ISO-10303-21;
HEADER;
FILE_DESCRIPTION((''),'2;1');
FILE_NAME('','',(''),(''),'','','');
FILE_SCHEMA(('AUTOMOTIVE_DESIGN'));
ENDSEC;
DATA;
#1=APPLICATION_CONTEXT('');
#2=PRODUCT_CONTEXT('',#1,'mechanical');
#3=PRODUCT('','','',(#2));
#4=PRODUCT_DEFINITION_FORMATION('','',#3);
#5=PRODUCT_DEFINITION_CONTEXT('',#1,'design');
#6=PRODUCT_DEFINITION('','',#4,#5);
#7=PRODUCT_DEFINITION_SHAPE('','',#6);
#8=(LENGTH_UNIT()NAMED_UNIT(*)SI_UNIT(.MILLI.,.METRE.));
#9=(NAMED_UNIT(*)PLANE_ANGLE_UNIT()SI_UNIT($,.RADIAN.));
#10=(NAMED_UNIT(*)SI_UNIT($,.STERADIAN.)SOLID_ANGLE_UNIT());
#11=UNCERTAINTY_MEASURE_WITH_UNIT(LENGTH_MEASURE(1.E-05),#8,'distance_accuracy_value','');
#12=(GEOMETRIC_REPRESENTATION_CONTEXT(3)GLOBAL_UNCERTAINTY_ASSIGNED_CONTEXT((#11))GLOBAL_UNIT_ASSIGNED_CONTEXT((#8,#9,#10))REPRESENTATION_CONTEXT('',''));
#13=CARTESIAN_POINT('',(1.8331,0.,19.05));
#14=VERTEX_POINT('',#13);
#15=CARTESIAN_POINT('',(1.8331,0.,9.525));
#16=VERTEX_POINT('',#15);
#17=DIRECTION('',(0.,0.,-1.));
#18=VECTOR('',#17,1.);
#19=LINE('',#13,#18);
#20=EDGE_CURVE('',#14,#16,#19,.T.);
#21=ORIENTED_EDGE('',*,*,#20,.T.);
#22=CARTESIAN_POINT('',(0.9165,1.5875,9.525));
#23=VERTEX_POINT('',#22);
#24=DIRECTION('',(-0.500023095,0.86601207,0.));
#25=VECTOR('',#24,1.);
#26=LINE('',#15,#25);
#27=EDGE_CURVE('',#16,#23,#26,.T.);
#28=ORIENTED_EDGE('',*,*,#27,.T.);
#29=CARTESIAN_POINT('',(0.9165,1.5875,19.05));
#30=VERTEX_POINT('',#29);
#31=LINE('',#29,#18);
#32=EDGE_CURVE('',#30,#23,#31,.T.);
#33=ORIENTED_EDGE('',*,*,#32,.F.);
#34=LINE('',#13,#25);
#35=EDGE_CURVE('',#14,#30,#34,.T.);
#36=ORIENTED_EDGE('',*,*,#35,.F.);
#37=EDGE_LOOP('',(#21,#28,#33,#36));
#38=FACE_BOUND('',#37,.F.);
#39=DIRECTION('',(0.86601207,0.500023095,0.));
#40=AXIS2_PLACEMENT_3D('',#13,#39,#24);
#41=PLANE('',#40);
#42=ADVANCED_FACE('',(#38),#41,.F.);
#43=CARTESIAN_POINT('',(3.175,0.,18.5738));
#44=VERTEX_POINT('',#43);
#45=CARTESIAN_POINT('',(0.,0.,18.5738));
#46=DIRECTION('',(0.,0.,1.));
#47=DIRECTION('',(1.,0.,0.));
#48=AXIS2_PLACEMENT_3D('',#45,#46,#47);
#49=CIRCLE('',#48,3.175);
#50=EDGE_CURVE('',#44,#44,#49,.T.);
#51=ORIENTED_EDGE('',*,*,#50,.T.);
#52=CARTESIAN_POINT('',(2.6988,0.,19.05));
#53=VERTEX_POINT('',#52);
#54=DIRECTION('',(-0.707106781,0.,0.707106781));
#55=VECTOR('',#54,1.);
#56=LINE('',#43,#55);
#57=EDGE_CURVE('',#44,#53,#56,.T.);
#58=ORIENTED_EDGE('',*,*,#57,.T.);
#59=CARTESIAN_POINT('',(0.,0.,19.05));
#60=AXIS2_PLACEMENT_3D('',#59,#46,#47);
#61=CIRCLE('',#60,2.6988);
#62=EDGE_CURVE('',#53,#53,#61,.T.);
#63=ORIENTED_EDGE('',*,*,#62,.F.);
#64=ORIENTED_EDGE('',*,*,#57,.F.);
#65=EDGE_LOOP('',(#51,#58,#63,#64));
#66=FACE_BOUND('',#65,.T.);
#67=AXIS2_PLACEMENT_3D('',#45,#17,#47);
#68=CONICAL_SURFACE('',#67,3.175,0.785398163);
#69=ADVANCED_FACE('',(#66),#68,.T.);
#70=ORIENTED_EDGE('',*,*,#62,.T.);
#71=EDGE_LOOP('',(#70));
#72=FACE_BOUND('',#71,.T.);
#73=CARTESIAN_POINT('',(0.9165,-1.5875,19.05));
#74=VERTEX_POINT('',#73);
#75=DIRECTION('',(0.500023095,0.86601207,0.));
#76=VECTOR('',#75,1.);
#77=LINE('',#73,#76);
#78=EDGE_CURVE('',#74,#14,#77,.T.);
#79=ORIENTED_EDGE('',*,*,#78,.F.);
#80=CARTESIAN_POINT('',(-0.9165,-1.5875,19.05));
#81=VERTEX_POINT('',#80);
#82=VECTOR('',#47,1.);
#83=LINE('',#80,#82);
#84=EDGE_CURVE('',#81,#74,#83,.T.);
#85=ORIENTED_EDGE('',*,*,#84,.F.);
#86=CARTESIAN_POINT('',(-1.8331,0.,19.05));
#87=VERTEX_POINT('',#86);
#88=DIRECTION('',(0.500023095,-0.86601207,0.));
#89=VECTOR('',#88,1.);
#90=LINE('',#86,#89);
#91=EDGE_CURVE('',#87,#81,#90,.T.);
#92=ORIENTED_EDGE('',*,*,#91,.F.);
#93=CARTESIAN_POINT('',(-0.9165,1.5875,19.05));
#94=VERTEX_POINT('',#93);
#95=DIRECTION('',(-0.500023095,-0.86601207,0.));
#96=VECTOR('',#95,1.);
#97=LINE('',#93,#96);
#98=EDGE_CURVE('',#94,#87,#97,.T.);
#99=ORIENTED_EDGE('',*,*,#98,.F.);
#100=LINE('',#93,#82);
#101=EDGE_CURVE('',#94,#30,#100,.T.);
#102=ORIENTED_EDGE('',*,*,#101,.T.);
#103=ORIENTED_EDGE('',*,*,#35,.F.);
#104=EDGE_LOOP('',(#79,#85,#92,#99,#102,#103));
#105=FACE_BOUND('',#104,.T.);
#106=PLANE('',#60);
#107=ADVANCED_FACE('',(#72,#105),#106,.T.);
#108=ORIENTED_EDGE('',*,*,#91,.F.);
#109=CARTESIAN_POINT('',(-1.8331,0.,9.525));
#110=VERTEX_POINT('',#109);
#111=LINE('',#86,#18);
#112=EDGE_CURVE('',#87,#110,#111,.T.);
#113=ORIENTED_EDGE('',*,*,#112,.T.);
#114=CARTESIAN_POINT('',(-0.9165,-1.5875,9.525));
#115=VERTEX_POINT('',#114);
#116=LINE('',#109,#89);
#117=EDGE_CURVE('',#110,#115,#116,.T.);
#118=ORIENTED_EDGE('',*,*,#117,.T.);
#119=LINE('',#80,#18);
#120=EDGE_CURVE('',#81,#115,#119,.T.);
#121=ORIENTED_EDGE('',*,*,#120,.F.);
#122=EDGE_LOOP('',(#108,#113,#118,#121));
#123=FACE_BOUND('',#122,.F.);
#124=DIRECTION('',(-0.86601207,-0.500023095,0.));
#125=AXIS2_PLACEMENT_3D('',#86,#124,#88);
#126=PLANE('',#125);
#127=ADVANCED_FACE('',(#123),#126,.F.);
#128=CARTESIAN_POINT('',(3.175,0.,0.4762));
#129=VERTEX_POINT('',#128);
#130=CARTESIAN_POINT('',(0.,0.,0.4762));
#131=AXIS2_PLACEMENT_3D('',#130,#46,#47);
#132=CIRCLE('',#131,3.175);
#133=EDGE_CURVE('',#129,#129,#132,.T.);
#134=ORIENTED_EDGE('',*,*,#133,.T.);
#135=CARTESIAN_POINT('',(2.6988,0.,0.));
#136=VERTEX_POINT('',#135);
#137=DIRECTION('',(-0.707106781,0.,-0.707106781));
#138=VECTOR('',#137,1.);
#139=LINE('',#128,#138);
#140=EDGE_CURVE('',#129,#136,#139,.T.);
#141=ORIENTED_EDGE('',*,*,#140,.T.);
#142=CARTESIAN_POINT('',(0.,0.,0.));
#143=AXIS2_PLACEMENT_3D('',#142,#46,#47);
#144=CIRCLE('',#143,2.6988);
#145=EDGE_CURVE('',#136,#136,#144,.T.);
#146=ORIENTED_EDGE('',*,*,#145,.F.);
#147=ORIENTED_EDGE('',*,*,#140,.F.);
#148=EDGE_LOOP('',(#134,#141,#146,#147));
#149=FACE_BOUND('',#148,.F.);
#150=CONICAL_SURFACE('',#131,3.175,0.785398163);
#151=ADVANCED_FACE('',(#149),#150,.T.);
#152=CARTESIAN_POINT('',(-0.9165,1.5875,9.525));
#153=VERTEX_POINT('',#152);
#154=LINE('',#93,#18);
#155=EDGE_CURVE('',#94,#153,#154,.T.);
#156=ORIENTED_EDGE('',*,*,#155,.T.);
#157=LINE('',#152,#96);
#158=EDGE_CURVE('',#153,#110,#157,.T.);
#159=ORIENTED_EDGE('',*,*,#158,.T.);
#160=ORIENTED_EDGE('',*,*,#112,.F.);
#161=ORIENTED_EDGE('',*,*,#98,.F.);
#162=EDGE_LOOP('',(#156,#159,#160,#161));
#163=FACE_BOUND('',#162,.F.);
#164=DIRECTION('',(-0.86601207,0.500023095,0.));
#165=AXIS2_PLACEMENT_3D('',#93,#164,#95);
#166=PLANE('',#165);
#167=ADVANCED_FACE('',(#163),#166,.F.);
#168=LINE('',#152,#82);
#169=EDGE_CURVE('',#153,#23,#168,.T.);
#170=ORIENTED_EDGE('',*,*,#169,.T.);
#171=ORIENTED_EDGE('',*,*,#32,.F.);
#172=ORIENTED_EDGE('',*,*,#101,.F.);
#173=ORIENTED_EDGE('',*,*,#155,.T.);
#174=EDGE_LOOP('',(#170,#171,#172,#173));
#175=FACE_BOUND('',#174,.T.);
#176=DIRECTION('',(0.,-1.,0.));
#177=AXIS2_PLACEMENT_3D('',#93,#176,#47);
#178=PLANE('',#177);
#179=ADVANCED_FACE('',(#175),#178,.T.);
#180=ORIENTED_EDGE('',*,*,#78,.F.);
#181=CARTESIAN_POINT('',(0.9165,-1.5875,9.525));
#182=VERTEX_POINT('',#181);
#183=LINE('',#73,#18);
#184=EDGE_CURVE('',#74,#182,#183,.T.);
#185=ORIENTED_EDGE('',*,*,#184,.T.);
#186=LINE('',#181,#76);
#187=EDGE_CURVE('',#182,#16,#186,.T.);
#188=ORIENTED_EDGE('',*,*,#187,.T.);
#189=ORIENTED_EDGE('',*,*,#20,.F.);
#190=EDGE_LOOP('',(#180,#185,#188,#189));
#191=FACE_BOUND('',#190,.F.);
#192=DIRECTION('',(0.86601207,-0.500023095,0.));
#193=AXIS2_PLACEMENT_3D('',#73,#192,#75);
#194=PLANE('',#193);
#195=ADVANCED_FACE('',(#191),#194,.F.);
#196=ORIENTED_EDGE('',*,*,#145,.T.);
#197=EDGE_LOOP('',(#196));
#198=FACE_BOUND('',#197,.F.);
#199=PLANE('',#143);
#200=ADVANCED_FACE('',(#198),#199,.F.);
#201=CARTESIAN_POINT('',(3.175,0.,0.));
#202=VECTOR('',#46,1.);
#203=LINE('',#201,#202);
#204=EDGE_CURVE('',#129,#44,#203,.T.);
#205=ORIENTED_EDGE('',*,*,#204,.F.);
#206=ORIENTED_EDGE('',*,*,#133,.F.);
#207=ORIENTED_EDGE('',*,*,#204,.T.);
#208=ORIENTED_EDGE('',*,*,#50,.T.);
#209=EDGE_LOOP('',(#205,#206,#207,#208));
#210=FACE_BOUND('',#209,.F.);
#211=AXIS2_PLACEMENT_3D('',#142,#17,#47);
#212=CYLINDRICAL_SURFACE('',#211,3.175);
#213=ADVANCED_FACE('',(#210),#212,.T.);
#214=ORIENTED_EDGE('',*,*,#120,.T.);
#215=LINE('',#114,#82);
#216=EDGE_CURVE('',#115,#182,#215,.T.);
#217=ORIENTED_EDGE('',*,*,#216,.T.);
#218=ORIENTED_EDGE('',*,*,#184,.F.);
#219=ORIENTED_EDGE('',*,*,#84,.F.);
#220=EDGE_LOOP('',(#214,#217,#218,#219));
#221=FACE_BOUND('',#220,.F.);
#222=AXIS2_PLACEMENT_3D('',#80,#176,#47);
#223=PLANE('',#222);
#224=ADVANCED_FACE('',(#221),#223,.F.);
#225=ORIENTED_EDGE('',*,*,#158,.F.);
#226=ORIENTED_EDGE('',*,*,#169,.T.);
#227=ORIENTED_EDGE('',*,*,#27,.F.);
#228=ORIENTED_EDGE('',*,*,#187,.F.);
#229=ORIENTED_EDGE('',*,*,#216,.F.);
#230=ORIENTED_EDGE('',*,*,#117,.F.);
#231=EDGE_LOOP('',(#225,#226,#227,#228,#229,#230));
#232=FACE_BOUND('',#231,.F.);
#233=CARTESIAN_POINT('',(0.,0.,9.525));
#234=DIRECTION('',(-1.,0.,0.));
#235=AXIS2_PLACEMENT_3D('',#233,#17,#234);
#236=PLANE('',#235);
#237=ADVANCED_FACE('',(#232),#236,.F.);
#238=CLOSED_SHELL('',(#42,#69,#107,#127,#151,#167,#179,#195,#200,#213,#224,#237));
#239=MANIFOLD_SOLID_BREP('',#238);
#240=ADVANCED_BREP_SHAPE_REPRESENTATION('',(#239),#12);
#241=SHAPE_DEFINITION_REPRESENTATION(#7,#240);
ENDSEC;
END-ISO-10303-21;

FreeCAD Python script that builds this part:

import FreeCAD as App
import Part
import Sketcher

V = App.Vector
Q = App.Units.Quantity


def edges_at(feature, points):
    """Names of the edges that pass closest to the given points."""
    edges = feature.Shape.Edges
    near = lambda p: min(range(len(edges)), key=lambda i: edges[i].distToShape(Part.Vertex(*p))[0])
    return sorted({f"Edge{near(p) + 1}" for p in points})

doc = App.newDocument("Part")
body = doc.addObject("PartDesign::Body", "Body")

# Sketch on XY plane
sketch1 = body.newObject("Sketcher::SketchObject", "Sketch")
sketch1.AttachmentSupport = (doc.getObject("XY_Plane"), [""])
sketch1.MapMode = "FlatFace"
sketch1.addGeometry(Part.Circle(V(0, 0, 0), V(0, 0, 1), 3.175), False)
sketch1.addConstraint(Sketcher.Constraint("Coincident", 0, 3, -1, 1))
sketch1.addConstraint(Sketcher.Constraint("Diameter", 0, Q("0.25 in")))
pad1 = body.newObject("PartDesign::Pad", "Pad")
pad1.Profile = sketch1
pad1.Length = Q("0.75 in")
doc.recompute()

chamfer = body.newObject("PartDesign::Chamfer", "Chamfer")
chamfer.Base = (pad1, edges_at(pad1, [(-3.175, 0, 0), (-3.175, 0, 19.05)]))
chamfer.Size = 0.4762

# Sketch on XY plane
sketch2 = body.newObject("Sketcher::SketchObject", "Sketch001")
sketch2.AttachmentSupport = (doc.getObject("XY_Plane"), [""])
sketch2.MapMode = "FlatFace"
sketch2.AttachmentOffset = App.Placement(V(0, 0, 0.75 * 25.4), App.Rotation())
sketch2.addGeometry(Part.LineSegment(V(0.9165, 1.5875, 0), V(-0.9165, 1.5875, 0)), False)
sketch2.addGeometry(Part.LineSegment(V(-0.9165, 1.5875, 0), V(-1.8331, 0, 0)), False)
sketch2.addGeometry(Part.LineSegment(V(-1.8331, 0, 0), V(-0.9165, -1.5875, 0)), False)
sketch2.addGeometry(Part.LineSegment(V(-0.9165, -1.5875, 0), V(0.9165, -1.5875, 0)), False)
sketch2.addGeometry(Part.LineSegment(V(0.9165, -1.5875, 0), V(1.8331, 0, 0)), False)
sketch2.addGeometry(Part.LineSegment(V(1.8331, 0, 0), V(0.9165, 1.5875, 0)), False)
sketch2.addConstraint(Sketcher.Constraint("Coincident", 0, 2, 1, 1))
sketch2.addConstraint(Sketcher.Constraint("Coincident", 1, 2, 2, 1))
sketch2.addConstraint(Sketcher.Constraint("Coincident", 2, 2, 3, 1))
sketch2.addConstraint(Sketcher.Constraint("Coincident", 3, 2, 4, 1))
sketch2.addConstraint(Sketcher.Constraint("Coincident", 4, 2, 5, 1))
sketch2.addConstraint(Sketcher.Constraint("Coincident", 5, 2, 0, 1))
sketch2.addConstraint(Sketcher.Constraint("Horizontal", 0))
sketch2.addConstraint(Sketcher.Constraint("Horizontal", 3))
sketch2.addConstraint(Sketcher.Constraint("Symmetric", 0, 2, 3, 2, -1, 1))
sketch2.addConstraint(Sketcher.Constraint("Symmetric", 1, 2, 4, 2, -1, 1))
sketch2.addConstraint(Sketcher.Constraint("PointOnObject", 1, 2, -1))
sketch2.addConstraint(Sketcher.Constraint("Parallel", 2, 5))
sketch2.addConstraint(Sketcher.Constraint("Vertical", 0, 2, 2, 2))
sketch2.addConstraint(Sketcher.Constraint("DistanceY", -1, 1, 0, 2, Q("0.0625 in")))
sketch2.addConstraint(Sketcher.Constraint("DistanceX", 0, 2, 0, 1, 1.833))
sketch2.addConstraint(Sketcher.Constraint("Distance", 1, 1.833))
pocket1 = body.newObject("PartDesign::Pocket", "Pocket")
pocket1.Profile = sketch2
pocket1.Length = Q("0.375 in")

doc.recompute()
